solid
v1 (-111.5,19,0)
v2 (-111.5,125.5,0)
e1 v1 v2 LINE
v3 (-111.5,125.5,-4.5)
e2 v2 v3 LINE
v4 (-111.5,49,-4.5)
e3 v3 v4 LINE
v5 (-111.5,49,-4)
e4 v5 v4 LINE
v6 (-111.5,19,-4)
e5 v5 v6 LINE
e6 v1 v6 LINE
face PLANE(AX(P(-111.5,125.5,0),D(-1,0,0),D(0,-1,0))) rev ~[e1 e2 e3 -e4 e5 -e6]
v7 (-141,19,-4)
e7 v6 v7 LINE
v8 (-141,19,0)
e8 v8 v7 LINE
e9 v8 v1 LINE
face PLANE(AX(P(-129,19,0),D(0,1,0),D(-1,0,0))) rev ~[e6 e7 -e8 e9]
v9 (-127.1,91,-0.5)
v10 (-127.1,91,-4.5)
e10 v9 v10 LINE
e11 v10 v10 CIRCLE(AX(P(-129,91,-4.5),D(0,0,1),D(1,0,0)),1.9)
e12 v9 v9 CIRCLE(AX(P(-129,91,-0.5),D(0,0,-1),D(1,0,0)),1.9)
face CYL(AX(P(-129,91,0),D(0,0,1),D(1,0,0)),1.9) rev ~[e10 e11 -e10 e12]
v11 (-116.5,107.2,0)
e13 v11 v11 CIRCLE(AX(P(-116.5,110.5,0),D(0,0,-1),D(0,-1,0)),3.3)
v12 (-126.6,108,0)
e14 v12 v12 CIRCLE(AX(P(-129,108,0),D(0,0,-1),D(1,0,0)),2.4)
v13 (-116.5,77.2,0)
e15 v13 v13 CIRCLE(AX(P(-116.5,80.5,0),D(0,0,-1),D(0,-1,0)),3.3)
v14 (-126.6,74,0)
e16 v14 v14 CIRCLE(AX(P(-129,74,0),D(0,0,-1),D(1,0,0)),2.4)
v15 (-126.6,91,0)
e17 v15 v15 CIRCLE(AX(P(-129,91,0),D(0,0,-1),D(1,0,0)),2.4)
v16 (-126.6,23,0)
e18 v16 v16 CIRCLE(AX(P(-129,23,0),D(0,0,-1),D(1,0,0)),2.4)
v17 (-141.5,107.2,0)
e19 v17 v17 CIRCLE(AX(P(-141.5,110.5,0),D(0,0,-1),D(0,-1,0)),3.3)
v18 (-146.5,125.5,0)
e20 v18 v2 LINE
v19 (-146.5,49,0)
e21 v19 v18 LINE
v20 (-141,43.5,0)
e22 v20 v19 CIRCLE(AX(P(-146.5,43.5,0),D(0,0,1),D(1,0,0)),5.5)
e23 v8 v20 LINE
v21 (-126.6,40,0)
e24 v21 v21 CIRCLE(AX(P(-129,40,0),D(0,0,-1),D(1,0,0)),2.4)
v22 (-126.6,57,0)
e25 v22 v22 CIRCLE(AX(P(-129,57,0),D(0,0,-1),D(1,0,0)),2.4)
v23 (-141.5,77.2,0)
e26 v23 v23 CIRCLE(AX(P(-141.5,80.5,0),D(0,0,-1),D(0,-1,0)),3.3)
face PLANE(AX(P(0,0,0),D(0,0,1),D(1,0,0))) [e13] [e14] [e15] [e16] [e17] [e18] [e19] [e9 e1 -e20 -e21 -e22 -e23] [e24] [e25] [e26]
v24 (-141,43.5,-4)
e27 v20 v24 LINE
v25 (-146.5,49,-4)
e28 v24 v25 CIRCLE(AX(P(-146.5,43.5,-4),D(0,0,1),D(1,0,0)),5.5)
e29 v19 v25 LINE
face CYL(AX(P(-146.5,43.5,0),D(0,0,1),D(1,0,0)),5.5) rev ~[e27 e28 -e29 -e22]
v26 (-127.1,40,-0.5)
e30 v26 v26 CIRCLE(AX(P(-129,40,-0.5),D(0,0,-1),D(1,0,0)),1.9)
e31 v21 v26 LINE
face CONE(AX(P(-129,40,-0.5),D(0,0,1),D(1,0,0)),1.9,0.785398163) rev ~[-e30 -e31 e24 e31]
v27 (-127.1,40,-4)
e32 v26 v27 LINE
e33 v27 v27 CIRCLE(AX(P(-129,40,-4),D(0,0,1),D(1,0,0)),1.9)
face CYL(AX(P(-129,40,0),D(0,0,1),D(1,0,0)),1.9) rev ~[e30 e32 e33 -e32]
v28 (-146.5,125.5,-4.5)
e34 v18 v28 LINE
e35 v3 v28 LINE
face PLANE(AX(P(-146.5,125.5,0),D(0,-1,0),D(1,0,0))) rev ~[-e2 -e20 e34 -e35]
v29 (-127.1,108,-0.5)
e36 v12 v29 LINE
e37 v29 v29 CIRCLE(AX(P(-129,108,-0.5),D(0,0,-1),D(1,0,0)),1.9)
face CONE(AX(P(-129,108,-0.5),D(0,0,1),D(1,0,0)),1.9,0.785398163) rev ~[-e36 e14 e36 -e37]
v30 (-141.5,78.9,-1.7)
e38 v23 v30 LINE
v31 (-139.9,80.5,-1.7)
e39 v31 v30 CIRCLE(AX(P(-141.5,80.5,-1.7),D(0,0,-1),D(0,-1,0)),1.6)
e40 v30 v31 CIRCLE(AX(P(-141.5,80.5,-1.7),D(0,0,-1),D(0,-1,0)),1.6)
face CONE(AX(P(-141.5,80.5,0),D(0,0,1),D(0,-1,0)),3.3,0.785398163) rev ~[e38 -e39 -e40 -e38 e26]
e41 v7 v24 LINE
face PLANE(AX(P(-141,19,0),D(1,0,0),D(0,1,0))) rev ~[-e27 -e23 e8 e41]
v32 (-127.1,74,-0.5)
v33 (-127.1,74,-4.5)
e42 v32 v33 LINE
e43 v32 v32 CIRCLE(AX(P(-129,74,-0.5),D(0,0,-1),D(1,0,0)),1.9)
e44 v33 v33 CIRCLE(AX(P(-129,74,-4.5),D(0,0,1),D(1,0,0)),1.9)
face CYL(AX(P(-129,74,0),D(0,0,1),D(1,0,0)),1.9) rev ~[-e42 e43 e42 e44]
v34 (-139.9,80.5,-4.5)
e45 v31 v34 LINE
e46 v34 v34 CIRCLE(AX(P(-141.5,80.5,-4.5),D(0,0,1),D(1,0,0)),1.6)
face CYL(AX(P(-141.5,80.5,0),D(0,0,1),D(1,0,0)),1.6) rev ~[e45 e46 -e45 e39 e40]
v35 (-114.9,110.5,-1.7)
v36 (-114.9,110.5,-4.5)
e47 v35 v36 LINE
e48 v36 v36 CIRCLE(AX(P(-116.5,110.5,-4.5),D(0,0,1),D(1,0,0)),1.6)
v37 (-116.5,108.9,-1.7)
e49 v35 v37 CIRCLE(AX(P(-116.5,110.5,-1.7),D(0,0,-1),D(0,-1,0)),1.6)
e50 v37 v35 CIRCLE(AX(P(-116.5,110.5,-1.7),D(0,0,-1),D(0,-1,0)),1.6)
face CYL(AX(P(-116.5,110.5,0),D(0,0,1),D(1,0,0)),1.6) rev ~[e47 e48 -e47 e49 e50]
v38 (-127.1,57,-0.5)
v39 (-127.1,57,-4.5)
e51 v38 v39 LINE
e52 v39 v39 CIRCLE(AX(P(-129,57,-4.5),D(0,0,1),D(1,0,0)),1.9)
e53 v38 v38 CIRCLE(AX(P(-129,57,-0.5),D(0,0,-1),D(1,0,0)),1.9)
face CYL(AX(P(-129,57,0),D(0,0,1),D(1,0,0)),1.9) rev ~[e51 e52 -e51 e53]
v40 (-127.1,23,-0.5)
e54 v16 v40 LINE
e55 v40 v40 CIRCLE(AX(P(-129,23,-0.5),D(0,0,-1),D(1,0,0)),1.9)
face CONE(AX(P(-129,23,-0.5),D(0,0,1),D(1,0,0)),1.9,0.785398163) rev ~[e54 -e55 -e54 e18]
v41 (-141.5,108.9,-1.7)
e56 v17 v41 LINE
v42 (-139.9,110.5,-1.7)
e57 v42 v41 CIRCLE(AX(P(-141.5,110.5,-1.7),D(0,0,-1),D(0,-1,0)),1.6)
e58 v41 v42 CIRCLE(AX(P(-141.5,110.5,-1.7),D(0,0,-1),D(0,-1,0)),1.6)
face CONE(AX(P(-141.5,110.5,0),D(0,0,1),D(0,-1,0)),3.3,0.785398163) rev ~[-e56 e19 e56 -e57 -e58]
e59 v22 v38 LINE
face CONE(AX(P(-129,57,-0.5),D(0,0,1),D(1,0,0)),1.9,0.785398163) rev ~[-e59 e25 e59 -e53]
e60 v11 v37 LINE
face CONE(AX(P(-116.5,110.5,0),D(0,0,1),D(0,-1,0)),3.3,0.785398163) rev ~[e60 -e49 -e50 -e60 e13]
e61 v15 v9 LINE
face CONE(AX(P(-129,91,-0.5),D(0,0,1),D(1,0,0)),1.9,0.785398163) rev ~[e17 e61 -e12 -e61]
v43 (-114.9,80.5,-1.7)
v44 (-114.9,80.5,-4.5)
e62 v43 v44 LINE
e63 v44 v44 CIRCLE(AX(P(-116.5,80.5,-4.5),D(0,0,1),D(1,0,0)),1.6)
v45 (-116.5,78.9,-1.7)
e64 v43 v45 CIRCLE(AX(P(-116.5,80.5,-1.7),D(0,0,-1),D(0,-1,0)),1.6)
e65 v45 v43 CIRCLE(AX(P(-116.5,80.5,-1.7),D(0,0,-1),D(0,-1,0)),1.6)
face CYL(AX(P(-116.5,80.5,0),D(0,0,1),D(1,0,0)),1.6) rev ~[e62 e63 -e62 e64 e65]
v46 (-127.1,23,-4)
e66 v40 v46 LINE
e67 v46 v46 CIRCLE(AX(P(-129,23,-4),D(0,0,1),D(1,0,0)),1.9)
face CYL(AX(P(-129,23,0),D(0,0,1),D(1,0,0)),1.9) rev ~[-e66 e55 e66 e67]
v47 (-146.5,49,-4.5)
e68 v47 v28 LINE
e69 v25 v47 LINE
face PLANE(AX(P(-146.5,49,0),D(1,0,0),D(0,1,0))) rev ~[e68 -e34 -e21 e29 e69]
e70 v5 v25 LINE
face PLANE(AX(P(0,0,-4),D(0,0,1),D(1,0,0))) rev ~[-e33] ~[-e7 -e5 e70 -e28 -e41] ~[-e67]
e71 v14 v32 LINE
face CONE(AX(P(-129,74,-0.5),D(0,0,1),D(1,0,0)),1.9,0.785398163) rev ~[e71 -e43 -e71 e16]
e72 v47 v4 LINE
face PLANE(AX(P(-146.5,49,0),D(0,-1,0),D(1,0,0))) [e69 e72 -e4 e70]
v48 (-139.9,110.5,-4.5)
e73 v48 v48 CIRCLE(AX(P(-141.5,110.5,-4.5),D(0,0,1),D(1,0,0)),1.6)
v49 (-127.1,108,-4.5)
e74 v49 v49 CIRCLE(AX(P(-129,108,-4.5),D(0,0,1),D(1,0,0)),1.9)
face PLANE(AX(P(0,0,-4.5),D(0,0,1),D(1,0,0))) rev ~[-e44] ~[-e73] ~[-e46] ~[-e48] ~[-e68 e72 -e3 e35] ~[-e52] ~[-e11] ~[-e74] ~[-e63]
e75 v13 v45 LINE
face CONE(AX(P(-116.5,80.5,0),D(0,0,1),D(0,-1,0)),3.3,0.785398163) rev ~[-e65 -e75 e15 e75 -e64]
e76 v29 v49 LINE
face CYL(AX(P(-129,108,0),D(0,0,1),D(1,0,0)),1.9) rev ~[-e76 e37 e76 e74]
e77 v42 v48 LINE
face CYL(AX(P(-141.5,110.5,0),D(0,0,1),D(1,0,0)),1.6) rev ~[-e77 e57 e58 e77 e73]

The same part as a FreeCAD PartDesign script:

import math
import FreeCAD as App
import Part
import Sketcher

V = App.Vector
Q = App.Units.Quantity


def edges_at(feature, points):
    """Names of the edges that pass closest to the given points."""
    edges = feature.Shape.Edges
    near = lambda p: min(range(len(edges)), key=lambda i: edges[i].distToShape(Part.Vertex(*p))[0])
    return sorted({f"Edge{near(p) + 1}" for p in points})


def add_polygon(sketch, points):
    """Adds a closed chain of lines whose ends are joined by coincident constraints."""
    first, n = sketch.GeometryCount, len(points)
    for a, b in zip(points, points[1:] + points[:1]):
        sketch.addGeometry(Part.LineSegment(App.Vector(*a, 0), App.Vector(*b, 0)), False)
    for i in range(n):
        sketch.addConstraint(Sketcher.Constraint("Coincident", first + i, 2, first + (i + 1) % n, 1))

doc = App.newDocument("Part")
body = doc.addObject("PartDesign::Body", "Body")

sketch1 = doc.addObject("Sketcher::SketchObject", "Sketch")
body.addObject(sketch1)
sketch1.AttachmentSupport = (doc.XY_Plane, [""])
sketch1.MapMode = "FlatFace"
add_polygon(sketch1, [(-146.5, 125.5), (-146.5, 49), (-111.5, 49), (-111.5, 125.5)])
sketch1.addGeometry(Part.Circle(V(-129, 108, 0), V(0, 0, 1), 1.9), False)
sketch1.addGeometry(Part.Circle(V(-129, 91, 0), V(0, 0, 1), 1.9), False)
sketch1.addGeometry(Part.Circle(V(-129, 74, 0), V(0, 0, 1), 1.9), False)
sketch1.addGeometry(Part.Circle(V(-129, 57, 0), V(0, 0, 1), 1.9), False)
sketch1.addGeometry(Part.Circle(V(-141.5, 80.5, 0), V(0, 0, 1), 1.6), False)
sketch1.addGeometry(Part.Circle(V(-141.5, 110.5, 0), V(0, 0, 1), 1.6), False)
sketch1.addGeometry(Part.Circle(V(-116.5, 80.5, 0), V(0, 0, 1), 1.6), False)
sketch1.addGeometry(Part.Circle(V(-116.5, 110.5, 0), V(0, 0, 1), 1.6), False)
sketch1.addConstraint(Sketcher.Constraint("Vertical", 0))
sketch1.addConstraint(Sketcher.Constraint("Horizontal", 1))
sketch1.addConstraint(Sketcher.Constraint("Vertical", 2))
sketch1.addConstraint(Sketcher.Constraint("Horizontal", 3))
sketch1.addConstraint(Sketcher.Constraint("Equal", 4, 5))
sketch1.addConstraint(Sketcher.Constraint("Equal", 5, 6))
sketch1.addConstraint(Sketcher.Constraint("Equal", 6, 7))
sketch1.addConstraint(Sketcher.Constraint("Equal", 8, 9))
sketch1.addConstraint(Sketcher.Constraint("Equal", 9, 10))
sketch1.addConstraint(Sketcher.Constraint("Equal", 10, 11))
sketch1.addConstraint(Sketcher.Constraint("Horizontal", 8, 3, 10, 3))
sketch1.addConstraint(Sketcher.Constraint("Horizontal", 9, 3, 11, 3))
sketch1.addConstraint(Sketcher.Constraint("Vertical", 4, 3, 5, 3))
sketch1.addConstraint(Sketcher.Constraint("Vertical", 5, 3, 6, 3))
sketch1.addConstraint(Sketcher.Constraint("Vertical", 6, 3, 7, 3))
sketch1.addConstraint(Sketcher.Constraint("Vertical", 8, 3, 9, 3))
sketch1.addConstraint(Sketcher.Constraint("Vertical", 10, 3, 11, 3))
sketch1.addConstraint(Sketcher.Constraint("Diameter", 4, Q("3.8 mm")))
sketch1.addConstraint(Sketcher.Constraint("Diameter", 8, Q("3.2 mm")))
sketch1.addConstraint(Sketcher.Constraint("DistanceX", 1, 1, 1, 2, Q("35 mm")))
sketch1.addConstraint(Sketcher.Constraint("DistanceY", 0, 2, 0, 1, Q("76.5 mm")))
sketch1.addConstraint(Sketcher.Constraint("DistanceY", 5, 3, 4, 3, Q("17 mm")))
sketch1.addConstraint(Sketcher.Constraint("DistanceY", 6, 3, 5, 3, Q("17 mm")))
sketch1.addConstraint(Sketcher.Constraint("DistanceY", 7, 3, 6, 3, Q("17 mm")))
sketch1.addConstraint(Sketcher.Constraint("DistanceY", 8, 3, 9, 3, Q("30 mm")))
sketch1.addConstraint(Sketcher.Constraint("DistanceX", 0, 2, 8, 3, Q("5 mm")))
sketch1.addConstraint(Sketcher.Constraint("DistanceX", 0, 2, 10, 3, Q("30 mm")))
sketch1.addConstraint(Sketcher.Constraint("DistanceY", 11, 3, 2, 2, Q("15 mm")))
sketch1.addConstraint(Sketcher.Constraint("DistanceX", 0, 2, 7, 3, Q("17.5 mm")))
sketch1.addConstraint(Sketcher.Constraint("DistanceY", 4, 3, 2, 2, Q("17.5 mm")))
sketch1.addConstraint(Sketcher.Constraint("DistanceX", 4, 3, -1, 1, Q("129 mm")))
sketch1.addConstraint(Sketcher.Constraint("DistanceY", -1, 1, 4, 3, Q("108 mm")))
pad1 = doc.addObject("PartDesign::Pad", "Pad")
body.addObject(pad1)
pad1.Profile = sketch1
pad1.Length = 4.5
pad1.Reversed = True

sketch2 = doc.addObject("Sketcher::SketchObject", "Sketch001")
body.addObject(sketch2)
sketch2.AttachmentSupport = (doc.XY_Plane, [""])
sketch2.MapMode = "FlatFace"
sketch2.addGeometry(Part.Circle(V(-141.5, 80.5, 0), V(0, 0, 1), 1.6), False)
sketch2.addGeometry(Part.Circle(V(-141.5, 110.5, 0), V(0, 0, 1), 1.6), False)
sketch2.addGeometry(Part.Circle(V(-116.5, 110.5, 0), V(0, 0, 1), 1.6), False)
sketch2.addGeometry(Part.Circle(V(-116.5, 80.5, 0), V(0, 0, 1), 1.6), False)
sketch2.addConstraint(Sketcher.Constraint("Equal", 0, 1))
sketch2.addConstraint(Sketcher.Constraint("Equal", 1, 2))
sketch2.addConstraint(Sketcher.Constraint("Equal", 2, 3))
sketch2.addConstraint(Sketcher.Constraint("Horizontal", 1, 3, 2, 3))
sketch2.addConstraint(Sketcher.Constraint("Horizontal", 0, 3, 3, 3))
sketch2.addConstraint(Sketcher.Constraint("Vertical", 0, 3, 1, 3))
sketch2.addConstraint(Sketcher.Constraint("Vertical", 2, 3, 3, 3))
sketch2.addConstraint(Sketcher.Constraint("Diameter", 0, Q("3.2 mm")))
sketch2.addConstraint(Sketcher.Constraint("DistanceY", 0, 3, 1, 3, Q("30 mm")))
sketch2.addConstraint(Sketcher.Constraint("DistanceX", 1, 3, 2, 3, Q("25 mm")))
sketch2.addConstraint(Sketcher.Constraint("DistanceX", 0, 3, -1, 1, Q("141.5 mm")))
sketch2.addConstraint(Sketcher.Constraint("DistanceY", -1, 1, 0, 3, Q("80.5 mm")))
doc.recompute()
hole = doc.addObject("PartDesign::Hole", "Hole")
body.addObject(hole)
hole.Profile = sketch2
hole.ThreadType = "None"
hole.Diameter = 3.2
hole.DepthType = "ThroughAll"
hole.HoleCutType = "Countersink"
hole.HoleCutDiameter = 6.6
hole.HoleCutCountersinkAngle = 90

sketch3 = doc.addObject("Sketcher::SketchObject", "Sketch002")
body.addObject(sketch3)
sketch3.AttachmentSupport = (doc.XY_Plane, [""])
sketch3.MapMode = "FlatFace"
sketch3.addGeometry(Part.ArcOfCircle(Part.Circle(V(-146.5, 43.5, 0), V(0, 0, 1), 5.5), math.radians(0), math.radians(90)), False)
sketch3.addGeometry(Part.LineSegment(V(-141, 43.5, 0), V(-141, 19, 0)), False)
sketch3.addGeometry(Part.LineSegment(V(-141, 19, 0), V(-111.5, 19, 0)), False)
sketch3.addGeometry(Part.LineSegment(V(-111.5, 19, 0), V(-111.5, 49, 0)), False)
sketch3.addGeometry(Part.LineSegment(V(-111.5, 49, 0), V(-146.5, 49, 0)), False)
sketch3.addGeometry(Part.Circle(V(-129, 40, 0), V(0, 0, 1), 1.9), False)
sketch3.addGeometry(Part.Circle(V(-129, 23, 0), V(0, 0, 1), 1.9), False)
sketch3.addConstraint(Sketcher.Constraint("Tangent", 0, 1, 1, 1))
sketch3.addConstraint(Sketcher.Constraint("Coincident", 1, 2, 2, 1))
sketch3.addConstraint(Sketcher.Constraint("Coincident", 2, 2, 3, 1))
sketch3.addConstraint(Sketcher.Constraint("Coincident", 3, 2, 4, 1))
sketch3.addConstraint(Sketcher.Constraint("Tangent", 4, 2, 0, 2))
sketch3.addConstraint(Sketcher.Constraint("Vertical", 1))
sketch3.addConstraint(Sketcher.Constraint("Horizontal", 2))
sketch3.addConstraint(Sketcher.Constraint("Vertical", 3))
sketch3.addConstraint(Sketcher.Constraint("Horizontal", 4))
sketch3.addConstraint(Sketcher.Constraint("Equal", 5, 6))
sketch3.addConstraint(Sketcher.Constraint("Vertical", 5, 3, 6, 3))
sketch3.addConstraint(Sketcher.Constraint("Diameter", 5, Q("3.8 mm")))
sketch3.addConstraint(Sketcher.Constraint("Radius", 0, Q("5.5 mm")))
sketch3.addConstraint(Sketcher.Constraint("DistanceX", 4, 2, 4, 1, Q("35 mm")))
sketch3.addConstraint(Sketcher.Constraint("DistanceY", 3, 1, 3, 2, Q("30 mm")))
sketch3.addConstraint(Sketcher.Constraint("DistanceY", 6, 3, 5, 3, Q("17 mm")))
sketch3.addConstraint(Sketcher.Constraint("DistanceY", 1, 2, 6, 3, Q("4 mm")))
sketch3.addConstraint(Sketcher.Constraint("DistanceX", 0, 3, 5, 3, Q("17.5 mm")))
sketch3.addConstraint(Sketcher.Constraint("DistanceX", 5, 3, -1, 1, Q("129 mm")))
sketch3.addConstraint(Sketcher.Constraint("DistanceY", -1, 1, 5, 3, Q("40 mm")))
pad2 = doc.addObject("PartDesign::Pad", "Pad001")
body.addObject(pad2)
pad2.Profile = sketch3
pad2.Length = 4
pad2.Reversed = True
doc.recompute()

chamfer = doc.addObject("PartDesign::Chamfer", "Chamfer")
body.addObject(chamfer)
chamfer.Base = (pad2, edges_at(pad2, [
    (-130.9, 108, 0),
    (-130.9, 91, 0),
    (-130.9, 74, 0),
    (-130.9, 57, 0),
    (-130.9, 40, 0),
    (-130.9, 23, 0),
]))
chamfer.Size = 0.5

doc.recompute()
